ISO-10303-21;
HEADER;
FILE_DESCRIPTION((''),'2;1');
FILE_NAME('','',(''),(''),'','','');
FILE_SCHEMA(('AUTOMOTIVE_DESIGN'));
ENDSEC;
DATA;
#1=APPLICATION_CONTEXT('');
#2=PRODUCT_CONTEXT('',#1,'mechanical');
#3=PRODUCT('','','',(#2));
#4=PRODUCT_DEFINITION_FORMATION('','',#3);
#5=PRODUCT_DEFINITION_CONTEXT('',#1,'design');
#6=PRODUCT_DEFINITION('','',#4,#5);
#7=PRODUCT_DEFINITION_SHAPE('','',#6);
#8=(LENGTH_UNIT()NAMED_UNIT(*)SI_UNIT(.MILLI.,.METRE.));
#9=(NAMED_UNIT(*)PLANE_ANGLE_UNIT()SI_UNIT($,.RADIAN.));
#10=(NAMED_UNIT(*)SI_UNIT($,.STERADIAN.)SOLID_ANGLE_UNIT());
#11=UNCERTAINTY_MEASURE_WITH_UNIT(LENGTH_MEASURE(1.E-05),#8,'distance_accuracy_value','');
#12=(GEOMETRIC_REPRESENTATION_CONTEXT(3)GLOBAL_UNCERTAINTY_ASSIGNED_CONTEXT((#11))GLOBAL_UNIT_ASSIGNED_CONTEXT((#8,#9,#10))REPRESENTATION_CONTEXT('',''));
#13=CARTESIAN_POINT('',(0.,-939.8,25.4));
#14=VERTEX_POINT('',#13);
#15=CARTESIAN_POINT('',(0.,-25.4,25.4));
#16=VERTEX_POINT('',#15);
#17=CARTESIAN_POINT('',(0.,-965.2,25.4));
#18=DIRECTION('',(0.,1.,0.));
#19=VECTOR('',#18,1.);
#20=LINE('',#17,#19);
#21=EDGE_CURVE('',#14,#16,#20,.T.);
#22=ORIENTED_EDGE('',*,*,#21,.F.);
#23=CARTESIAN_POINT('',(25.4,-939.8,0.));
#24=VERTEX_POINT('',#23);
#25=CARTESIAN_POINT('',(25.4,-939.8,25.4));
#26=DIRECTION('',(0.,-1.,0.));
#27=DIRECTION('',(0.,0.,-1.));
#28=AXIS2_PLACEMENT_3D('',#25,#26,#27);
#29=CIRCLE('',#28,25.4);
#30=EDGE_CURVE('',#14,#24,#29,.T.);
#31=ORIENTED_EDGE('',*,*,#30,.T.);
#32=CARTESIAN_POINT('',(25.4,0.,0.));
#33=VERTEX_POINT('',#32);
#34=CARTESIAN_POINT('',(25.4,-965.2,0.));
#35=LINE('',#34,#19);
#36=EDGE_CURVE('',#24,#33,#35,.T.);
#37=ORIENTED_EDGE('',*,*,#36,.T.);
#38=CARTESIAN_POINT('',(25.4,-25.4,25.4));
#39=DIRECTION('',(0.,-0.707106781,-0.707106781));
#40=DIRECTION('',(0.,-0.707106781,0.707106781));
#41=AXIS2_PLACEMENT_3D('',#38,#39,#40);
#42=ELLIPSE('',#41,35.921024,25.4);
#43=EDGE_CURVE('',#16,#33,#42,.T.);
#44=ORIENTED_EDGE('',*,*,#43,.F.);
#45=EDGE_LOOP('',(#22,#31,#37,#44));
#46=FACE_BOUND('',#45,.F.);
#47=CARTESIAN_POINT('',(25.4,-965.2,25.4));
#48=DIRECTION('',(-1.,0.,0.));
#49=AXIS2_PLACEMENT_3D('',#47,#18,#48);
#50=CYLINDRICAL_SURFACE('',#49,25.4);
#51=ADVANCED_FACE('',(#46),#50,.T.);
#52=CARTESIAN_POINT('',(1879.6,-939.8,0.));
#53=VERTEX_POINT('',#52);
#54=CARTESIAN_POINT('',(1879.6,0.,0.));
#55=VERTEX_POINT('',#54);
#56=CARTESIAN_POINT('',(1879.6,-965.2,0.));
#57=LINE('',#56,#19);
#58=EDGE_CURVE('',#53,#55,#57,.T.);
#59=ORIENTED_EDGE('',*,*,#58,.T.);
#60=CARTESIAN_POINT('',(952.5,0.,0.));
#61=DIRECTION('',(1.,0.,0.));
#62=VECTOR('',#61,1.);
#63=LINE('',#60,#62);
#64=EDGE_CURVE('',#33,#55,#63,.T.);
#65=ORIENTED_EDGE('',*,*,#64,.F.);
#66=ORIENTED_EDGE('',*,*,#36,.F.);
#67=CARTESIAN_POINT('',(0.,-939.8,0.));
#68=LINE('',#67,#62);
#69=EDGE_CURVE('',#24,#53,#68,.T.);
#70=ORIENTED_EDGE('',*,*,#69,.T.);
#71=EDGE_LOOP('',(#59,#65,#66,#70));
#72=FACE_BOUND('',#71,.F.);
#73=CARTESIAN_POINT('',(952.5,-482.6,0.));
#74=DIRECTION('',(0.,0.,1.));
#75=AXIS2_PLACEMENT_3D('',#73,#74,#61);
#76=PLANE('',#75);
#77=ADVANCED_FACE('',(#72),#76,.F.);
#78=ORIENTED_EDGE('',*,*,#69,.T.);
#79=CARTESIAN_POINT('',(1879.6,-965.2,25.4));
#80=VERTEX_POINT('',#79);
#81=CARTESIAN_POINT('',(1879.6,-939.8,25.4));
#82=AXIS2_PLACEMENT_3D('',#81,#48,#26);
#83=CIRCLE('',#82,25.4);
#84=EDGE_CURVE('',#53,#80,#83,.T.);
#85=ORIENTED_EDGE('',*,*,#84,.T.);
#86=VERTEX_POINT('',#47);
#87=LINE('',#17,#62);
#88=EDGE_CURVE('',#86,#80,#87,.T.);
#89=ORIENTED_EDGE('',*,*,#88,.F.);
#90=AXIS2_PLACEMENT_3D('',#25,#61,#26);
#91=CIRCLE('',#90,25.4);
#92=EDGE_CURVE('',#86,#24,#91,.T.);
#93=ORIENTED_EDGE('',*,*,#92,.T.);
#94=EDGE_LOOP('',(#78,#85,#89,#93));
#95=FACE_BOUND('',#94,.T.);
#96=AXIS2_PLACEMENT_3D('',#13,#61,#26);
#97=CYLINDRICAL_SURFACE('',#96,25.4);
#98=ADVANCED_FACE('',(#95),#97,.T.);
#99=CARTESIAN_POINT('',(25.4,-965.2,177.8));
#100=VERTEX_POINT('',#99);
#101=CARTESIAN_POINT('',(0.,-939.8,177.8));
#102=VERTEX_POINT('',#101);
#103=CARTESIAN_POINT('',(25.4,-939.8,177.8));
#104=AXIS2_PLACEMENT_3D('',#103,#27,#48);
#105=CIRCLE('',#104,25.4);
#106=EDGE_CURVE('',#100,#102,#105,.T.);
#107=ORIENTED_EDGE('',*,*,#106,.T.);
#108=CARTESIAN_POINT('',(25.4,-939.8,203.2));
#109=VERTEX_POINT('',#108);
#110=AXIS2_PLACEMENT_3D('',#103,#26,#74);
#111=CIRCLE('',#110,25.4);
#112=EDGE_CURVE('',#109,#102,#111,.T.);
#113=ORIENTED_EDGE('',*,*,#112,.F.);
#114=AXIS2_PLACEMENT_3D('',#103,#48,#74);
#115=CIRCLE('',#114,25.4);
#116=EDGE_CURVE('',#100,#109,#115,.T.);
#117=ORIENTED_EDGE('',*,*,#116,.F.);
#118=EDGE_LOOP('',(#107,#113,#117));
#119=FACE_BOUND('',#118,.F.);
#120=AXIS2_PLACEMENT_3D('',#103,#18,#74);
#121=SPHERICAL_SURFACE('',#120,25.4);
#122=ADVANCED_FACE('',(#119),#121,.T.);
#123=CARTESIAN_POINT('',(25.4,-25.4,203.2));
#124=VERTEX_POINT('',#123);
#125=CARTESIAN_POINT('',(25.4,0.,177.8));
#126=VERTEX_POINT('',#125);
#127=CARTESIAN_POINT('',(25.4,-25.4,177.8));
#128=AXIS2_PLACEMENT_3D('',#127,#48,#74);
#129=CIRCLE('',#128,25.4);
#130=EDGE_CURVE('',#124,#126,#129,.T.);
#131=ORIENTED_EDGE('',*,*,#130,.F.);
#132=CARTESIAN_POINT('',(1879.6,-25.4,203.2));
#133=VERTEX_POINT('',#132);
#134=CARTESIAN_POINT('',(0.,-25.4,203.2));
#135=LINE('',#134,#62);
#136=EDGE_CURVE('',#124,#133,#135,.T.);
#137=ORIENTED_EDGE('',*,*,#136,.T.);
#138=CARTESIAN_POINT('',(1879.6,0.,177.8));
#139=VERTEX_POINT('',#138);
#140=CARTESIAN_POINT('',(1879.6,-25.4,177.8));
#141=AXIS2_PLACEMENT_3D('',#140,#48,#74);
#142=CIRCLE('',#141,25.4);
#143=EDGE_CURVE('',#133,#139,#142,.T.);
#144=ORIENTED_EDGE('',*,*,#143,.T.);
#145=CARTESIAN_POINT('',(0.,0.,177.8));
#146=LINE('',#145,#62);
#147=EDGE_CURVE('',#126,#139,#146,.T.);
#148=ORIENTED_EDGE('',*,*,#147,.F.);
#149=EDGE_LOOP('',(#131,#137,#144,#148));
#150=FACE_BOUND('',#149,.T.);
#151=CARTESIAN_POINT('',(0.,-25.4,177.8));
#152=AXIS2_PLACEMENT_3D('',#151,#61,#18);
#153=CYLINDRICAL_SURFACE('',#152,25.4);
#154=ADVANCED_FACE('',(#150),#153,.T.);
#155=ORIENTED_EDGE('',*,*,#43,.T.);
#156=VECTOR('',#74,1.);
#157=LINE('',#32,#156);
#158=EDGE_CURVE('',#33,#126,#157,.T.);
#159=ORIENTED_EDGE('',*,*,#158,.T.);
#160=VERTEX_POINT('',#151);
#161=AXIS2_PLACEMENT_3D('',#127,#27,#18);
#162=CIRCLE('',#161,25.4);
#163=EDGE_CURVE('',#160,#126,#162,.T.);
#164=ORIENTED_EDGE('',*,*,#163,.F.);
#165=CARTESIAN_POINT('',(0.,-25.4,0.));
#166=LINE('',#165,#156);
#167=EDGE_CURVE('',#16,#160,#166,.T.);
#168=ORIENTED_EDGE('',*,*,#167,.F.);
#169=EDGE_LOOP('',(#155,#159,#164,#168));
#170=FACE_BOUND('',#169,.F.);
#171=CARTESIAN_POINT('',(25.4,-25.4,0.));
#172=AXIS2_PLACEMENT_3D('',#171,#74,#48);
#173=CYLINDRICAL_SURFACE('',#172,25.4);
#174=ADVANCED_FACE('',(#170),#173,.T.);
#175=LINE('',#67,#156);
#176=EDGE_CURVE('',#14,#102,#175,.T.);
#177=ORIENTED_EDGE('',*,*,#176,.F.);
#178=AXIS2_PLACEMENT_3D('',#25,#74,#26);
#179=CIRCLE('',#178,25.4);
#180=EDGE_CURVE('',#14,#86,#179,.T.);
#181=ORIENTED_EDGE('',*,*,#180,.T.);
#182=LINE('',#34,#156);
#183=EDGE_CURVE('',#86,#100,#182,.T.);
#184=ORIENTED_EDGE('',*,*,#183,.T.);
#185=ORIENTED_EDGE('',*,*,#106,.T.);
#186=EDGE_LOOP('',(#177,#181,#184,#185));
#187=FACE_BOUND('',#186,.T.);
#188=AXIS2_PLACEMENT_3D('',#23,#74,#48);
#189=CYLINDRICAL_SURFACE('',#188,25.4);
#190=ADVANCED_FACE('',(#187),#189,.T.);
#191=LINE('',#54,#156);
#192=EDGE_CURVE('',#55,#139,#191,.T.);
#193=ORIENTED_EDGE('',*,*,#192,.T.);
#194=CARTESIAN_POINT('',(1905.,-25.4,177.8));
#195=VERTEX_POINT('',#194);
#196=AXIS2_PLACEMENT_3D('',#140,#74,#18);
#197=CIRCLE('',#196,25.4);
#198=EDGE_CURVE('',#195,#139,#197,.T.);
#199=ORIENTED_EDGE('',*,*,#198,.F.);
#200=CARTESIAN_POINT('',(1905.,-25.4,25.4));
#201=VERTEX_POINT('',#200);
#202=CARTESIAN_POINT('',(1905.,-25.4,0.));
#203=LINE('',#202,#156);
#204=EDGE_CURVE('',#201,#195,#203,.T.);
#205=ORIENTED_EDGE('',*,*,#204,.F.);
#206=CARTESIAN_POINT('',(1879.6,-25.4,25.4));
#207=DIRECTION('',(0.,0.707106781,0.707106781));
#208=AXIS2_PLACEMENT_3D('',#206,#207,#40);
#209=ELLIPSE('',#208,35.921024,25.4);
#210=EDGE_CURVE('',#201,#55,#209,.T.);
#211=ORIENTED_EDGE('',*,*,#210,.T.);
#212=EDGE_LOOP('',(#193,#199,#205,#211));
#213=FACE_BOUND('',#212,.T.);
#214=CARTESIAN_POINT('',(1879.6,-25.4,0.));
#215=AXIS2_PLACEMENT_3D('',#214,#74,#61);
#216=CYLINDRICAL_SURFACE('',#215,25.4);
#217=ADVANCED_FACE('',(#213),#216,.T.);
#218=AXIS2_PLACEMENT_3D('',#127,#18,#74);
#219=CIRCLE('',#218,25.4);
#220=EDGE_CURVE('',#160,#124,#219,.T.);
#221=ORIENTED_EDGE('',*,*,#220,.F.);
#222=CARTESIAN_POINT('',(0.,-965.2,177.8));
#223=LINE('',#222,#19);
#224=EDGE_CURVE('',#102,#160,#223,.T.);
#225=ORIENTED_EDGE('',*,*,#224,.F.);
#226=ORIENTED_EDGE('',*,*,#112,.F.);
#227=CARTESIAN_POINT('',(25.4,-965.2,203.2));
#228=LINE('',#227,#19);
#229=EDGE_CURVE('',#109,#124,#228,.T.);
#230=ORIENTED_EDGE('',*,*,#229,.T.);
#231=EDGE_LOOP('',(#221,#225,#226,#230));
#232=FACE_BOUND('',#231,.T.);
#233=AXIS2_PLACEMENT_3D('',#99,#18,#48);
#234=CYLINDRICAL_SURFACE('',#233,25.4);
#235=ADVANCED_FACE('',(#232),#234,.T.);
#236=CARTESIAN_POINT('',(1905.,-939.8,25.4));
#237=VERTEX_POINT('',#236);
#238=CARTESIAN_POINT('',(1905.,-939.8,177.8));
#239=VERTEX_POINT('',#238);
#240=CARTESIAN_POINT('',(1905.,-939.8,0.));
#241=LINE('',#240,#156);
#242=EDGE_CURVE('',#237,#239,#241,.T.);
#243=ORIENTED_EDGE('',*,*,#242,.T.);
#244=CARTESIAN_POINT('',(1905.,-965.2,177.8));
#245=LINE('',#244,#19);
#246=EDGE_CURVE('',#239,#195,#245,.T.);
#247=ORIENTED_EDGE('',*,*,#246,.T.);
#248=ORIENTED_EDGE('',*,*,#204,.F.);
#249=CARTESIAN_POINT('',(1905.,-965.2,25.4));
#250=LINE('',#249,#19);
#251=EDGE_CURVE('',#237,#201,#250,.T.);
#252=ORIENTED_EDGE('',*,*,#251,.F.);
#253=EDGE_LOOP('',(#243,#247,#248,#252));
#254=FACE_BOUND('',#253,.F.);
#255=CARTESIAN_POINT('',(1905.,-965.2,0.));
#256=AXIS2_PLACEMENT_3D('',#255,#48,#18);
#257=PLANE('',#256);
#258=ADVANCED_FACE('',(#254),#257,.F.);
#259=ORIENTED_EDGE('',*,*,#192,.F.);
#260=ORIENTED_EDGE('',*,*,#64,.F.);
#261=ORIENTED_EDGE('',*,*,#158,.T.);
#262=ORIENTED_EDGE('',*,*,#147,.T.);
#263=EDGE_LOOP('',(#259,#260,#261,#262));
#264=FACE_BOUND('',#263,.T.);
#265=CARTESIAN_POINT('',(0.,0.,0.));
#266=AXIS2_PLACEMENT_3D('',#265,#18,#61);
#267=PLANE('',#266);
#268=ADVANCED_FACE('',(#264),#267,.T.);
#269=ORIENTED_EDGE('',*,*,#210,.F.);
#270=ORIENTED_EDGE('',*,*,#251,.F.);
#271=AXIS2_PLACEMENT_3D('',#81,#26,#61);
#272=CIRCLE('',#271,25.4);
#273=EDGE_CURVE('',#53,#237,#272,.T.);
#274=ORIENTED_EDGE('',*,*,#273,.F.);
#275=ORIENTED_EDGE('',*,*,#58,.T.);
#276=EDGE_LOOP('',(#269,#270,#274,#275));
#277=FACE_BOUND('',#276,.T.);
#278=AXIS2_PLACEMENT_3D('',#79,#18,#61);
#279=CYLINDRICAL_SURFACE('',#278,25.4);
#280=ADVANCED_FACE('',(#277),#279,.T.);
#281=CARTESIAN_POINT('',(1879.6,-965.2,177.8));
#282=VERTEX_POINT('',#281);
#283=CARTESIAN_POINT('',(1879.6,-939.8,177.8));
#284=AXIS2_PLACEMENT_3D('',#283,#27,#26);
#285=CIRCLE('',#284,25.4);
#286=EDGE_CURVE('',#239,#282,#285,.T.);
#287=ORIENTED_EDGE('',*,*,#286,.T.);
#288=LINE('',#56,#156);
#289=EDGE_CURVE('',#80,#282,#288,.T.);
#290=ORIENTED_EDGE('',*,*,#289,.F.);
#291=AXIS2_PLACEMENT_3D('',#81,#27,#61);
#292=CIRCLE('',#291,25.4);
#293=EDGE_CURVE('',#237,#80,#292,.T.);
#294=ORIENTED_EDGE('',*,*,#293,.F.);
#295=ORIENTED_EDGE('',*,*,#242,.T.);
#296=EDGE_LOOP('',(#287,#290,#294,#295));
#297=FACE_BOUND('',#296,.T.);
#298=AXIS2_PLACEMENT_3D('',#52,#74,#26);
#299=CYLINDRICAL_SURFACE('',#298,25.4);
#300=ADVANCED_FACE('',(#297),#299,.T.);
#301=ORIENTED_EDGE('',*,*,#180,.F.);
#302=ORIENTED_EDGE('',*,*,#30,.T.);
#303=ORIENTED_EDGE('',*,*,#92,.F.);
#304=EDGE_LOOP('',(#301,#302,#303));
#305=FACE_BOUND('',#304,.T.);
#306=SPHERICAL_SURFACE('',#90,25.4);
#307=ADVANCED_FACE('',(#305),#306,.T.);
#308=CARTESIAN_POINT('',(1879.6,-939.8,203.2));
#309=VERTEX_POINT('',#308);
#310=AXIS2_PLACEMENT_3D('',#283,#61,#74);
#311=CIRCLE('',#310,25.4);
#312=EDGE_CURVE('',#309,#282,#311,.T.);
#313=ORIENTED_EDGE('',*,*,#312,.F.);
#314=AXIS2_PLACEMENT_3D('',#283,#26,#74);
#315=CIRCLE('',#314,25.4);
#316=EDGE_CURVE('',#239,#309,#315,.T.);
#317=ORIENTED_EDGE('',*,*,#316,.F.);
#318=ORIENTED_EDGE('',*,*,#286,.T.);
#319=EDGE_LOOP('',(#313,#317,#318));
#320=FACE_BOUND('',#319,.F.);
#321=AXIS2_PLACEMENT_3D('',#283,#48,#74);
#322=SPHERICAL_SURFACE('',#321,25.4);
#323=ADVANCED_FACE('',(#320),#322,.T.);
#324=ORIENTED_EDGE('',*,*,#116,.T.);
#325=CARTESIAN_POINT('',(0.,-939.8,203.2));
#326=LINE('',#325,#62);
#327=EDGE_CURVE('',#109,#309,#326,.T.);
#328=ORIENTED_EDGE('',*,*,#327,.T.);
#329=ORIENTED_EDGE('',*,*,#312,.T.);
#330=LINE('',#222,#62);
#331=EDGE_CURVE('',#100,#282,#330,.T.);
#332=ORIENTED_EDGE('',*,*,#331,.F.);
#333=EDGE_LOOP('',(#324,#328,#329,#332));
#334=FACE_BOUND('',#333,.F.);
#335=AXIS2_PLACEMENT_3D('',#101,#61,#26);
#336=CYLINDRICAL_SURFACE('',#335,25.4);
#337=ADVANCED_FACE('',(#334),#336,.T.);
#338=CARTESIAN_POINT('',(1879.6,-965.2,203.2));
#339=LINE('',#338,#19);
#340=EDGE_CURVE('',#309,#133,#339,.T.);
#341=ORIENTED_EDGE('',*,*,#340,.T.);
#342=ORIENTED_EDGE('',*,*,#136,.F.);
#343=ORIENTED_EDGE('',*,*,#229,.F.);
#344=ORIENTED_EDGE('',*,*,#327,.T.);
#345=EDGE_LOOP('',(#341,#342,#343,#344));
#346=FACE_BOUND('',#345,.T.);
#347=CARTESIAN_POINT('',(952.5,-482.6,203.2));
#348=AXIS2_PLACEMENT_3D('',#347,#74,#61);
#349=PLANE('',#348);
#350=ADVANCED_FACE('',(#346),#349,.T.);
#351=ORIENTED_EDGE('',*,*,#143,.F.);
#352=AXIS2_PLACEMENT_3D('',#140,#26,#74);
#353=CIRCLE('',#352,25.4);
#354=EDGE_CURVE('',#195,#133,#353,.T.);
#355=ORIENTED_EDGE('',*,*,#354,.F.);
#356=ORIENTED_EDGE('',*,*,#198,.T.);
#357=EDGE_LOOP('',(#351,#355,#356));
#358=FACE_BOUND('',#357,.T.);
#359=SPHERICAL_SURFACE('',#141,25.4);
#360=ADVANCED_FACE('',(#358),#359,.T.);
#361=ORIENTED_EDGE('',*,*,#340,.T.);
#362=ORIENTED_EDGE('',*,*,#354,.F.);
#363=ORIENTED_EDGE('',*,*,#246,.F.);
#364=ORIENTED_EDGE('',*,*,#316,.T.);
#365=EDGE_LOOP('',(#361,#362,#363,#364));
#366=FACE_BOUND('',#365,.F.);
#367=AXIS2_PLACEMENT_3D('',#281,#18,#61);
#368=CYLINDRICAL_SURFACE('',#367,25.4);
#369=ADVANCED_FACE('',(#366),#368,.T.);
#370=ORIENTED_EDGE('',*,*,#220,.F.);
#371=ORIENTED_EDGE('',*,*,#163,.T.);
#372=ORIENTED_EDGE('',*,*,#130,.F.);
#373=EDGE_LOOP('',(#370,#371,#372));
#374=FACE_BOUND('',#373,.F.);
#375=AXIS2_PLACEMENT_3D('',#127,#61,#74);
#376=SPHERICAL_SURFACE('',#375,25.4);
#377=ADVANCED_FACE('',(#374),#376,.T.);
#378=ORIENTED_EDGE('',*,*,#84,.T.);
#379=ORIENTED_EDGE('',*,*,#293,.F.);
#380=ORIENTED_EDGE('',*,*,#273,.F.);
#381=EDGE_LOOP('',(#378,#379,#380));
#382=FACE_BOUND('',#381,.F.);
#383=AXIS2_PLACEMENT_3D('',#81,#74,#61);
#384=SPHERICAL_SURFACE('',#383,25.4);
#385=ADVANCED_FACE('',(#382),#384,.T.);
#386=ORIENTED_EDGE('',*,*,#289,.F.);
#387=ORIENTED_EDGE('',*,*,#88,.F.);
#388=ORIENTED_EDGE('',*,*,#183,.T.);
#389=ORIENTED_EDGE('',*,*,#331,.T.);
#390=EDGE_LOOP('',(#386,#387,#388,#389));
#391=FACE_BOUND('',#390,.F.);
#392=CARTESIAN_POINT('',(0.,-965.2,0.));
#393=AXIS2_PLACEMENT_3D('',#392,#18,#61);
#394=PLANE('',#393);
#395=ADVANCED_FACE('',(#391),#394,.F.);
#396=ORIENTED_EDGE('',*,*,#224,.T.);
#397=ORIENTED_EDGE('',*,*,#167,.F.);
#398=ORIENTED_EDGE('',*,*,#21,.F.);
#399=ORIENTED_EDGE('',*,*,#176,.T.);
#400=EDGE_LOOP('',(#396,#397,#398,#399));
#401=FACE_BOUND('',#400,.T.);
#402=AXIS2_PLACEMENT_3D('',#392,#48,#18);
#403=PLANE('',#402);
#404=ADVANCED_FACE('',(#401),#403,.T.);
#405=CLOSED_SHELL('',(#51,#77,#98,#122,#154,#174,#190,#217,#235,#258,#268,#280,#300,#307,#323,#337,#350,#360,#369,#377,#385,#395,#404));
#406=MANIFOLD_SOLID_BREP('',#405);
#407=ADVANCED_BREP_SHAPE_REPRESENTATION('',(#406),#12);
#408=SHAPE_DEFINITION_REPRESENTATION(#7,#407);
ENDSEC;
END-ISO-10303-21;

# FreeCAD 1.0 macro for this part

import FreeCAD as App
import Part
import Sketcher
Q = App.Units.Quantity


def edges_at(feature, points):
    """Names of the edges that pass closest to the given points."""
    edges = feature.Shape.Edges
    near = lambda p: min(range(len(edges)), key=lambda i: edges[i].distToShape(Part.Vertex(*p))[0])
    return sorted({f"Edge{near(p) + 1}" for p in points})

doc = App.newDocument("Part")
body = doc.addObject("PartDesign::Body", "Body")

# Sketch on XY plane
sketch1 = body.newObject("Sketcher::SketchObject", "Sketch")
sketch1.AttachmentSupport = (doc.getObject("XY_Plane"), [""])
sketch1.MapMode = "FlatFace"
sketch1.addGeometry([
    Part.LineSegment(App.Vector(0, 0, 0), App.Vector(0, -965, 0)),
    Part.LineSegment(App.Vector(0, -965, 0), App.Vector(1905, -965, 0)),
    Part.LineSegment(App.Vector(1905, -965, 0), App.Vector(1905, 0, 0)),
    Part.LineSegment(App.Vector(1905, 0, 0), App.Vector(0, 0, 0)),
], False)
sketch1.addConstraint([
    Sketcher.Constraint("Coincident", 0, 2, 1, 1),
    Sketcher.Constraint("Coincident", 1, 2, 2, 1),
    Sketcher.Constraint("Coincident", 2, 2, 3, 1),
    Sketcher.Constraint("Coincident", 3, 2, 0, 1),
    Sketcher.Constraint("Vertical", 0),
    Sketcher.Constraint("Horizontal", 1),
    Sketcher.Constraint("Vertical", 2),
    Sketcher.Constraint("Horizontal", 3),
    Sketcher.Constraint("Coincident", 3, 2, -1, 1),
    Sketcher.Constraint("DistanceX", 1, 1, 1, 2, Q("75 in")),
    Sketcher.Constraint("DistanceY", 0, 2, 0, 1, Q("38 in")),
])
pad1 = body.newObject("PartDesign::Pad", "Pad")
pad1.Profile = sketch1
pad1.Length = Q("8 in")
doc.recompute()

fillet = body.newObject("PartDesign::Fillet", "Fillet")
fillet.Base = (pad1, edges_at(pad1, [
    (952.5, 0, 203.2),
    (0, -482.6, 203.2),
    (952.5, -965.2, 203.2),
    (1905, -482.6, 203.2),
    (1905, -965.2, 101.6),
    (1905, 0, 101.6),
    (1905, -482.6, 0),
    (952.5, -965.2, 0),
    (0, 0, 101.6),
    (0, -965.2, 101.6),
    (0, -482.6, 0),
]))
fillet.Radius = Q("1 in")

doc.recompute()
